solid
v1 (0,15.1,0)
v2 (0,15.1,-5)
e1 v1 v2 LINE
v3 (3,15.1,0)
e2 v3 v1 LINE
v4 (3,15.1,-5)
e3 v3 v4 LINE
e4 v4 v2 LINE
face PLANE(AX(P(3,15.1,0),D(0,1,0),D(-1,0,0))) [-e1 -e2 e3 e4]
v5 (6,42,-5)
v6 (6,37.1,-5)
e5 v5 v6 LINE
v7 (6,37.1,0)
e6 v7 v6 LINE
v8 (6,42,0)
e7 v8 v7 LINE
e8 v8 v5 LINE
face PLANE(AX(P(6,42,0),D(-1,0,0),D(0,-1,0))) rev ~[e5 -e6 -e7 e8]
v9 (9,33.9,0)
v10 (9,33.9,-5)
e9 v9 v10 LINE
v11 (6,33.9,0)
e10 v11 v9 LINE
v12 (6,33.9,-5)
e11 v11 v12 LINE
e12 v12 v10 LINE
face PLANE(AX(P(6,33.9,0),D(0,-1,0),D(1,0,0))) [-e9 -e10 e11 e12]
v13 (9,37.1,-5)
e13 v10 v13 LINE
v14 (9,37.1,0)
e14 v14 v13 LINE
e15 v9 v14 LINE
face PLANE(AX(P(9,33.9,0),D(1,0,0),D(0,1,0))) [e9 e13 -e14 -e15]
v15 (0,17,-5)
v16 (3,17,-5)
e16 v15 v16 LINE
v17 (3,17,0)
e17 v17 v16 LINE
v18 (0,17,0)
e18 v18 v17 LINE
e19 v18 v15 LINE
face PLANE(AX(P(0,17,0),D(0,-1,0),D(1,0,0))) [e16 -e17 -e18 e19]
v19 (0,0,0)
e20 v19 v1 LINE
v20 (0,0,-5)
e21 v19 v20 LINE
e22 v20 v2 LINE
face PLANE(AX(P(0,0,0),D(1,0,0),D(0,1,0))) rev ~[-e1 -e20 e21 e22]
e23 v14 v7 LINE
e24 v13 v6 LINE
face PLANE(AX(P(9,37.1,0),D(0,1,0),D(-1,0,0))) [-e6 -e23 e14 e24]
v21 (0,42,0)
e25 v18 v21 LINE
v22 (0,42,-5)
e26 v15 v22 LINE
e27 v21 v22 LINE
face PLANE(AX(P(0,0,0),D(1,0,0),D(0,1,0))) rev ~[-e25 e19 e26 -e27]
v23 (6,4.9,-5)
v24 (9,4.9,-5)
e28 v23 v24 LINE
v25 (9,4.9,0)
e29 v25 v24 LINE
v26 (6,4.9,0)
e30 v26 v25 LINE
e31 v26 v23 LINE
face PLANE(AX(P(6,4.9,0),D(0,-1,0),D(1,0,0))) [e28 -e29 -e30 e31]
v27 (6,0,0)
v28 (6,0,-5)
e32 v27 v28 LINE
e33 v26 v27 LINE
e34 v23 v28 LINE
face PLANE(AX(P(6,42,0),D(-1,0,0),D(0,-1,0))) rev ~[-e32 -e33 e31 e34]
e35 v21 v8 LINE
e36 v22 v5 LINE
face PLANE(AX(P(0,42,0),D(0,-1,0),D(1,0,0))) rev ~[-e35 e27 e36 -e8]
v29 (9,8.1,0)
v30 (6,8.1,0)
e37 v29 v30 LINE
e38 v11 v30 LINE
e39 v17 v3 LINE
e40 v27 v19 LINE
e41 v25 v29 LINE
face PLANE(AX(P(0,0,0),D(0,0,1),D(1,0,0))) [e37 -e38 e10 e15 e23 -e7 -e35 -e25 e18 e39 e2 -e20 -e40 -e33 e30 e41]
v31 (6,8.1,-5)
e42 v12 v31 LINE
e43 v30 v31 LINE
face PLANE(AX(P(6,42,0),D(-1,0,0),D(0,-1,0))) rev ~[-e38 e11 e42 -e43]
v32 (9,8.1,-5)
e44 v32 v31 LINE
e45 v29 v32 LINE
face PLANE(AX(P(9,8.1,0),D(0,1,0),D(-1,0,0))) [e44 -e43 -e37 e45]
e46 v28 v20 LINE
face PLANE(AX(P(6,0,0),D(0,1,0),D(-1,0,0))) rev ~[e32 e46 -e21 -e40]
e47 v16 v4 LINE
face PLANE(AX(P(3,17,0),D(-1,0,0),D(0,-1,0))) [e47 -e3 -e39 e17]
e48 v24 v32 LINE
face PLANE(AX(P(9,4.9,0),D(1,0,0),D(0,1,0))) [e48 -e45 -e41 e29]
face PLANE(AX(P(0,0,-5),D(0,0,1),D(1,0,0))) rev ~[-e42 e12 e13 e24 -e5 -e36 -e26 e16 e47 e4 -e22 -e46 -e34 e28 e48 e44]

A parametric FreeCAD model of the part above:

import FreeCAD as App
import Part
import Sketcher
Q = App.Units.Quantity


def add_polygon(sketch, points):
    """Adds a closed chain of lines whose ends are joined by coincident constraints."""
    first, n = sketch.GeometryCount, len(points)
    for a, b in zip(points, points[1:] + points[:1]):
        sketch.addGeometry(Part.LineSegment(App.Vector(*a, 0), App.Vector(*b, 0)), False)
    for i in range(n):
        sketch.addConstraint(Sketcher.Constraint("Coincident", first + i, 2, first + (i + 1) % n, 1))

doc = App.newDocument("Part")
body = doc.addObject("PartDesign::Body", "Body")

# Sketch on XY plane
sketch1 = body.newObject("Sketcher::SketchObject", "Sketch")
sketch1.AttachmentSupport = (doc.getObject("XY_Plane"), [""])
sketch1.MapMode = "FlatFace"
add_polygon(sketch1, [(6, 42), (0, 42), (0, 0), (6, 0)])  # lines 0-3
sketch1.addConstraint(Sketcher.Constraint("Horizontal", 0))
sketch1.addConstraint(Sketcher.Constraint("Vertical", 1))
sketch1.addConstraint(Sketcher.Constraint("Horizontal", 2))
sketch1.addConstraint(Sketcher.Constraint("Vertical", 3))
sketch1.addConstraint(Sketcher.Constraint("Coincident", 1, 2, -1, 1))
sketch1.addConstraint(Sketcher.Constraint("DistanceX", 0, 2, 0, 1, Q("6 mm")))
sketch1.addConstraint(Sketcher.Constraint("DistanceY", 1, 2, 1, 1, Q("42 mm")))
pad1 = body.newObject("PartDesign::Pad", "Pad")
pad1.Profile = sketch1
pad1.Length = 5
pad1.Reversed = True

# Sketch on XY plane
sketch2 = body.newObject("Sketcher::SketchObject", "Sketch001")
sketch2.AttachmentSupport = (doc.getObject("XY_Plane"), [""])
sketch2.MapMode = "FlatFace"
add_polygon(sketch2, [(0, 17), (0, 15.1), (3, 15.1), (3, 17)])  # lines 0-3
sketch2.addConstraint(Sketcher.Constraint("Vertical", 0))
sketch2.addConstraint(Sketcher.Constraint("Horizontal", 1))
sketch2.addConstraint(Sketcher.Constraint("Vertical", 2))
sketch2.addConstraint(Sketcher.Constraint("Horizontal", 3))
sketch2.addConstraint(Sketcher.Constraint("PointOnObject", 0, 2, -2))
sketch2.addConstraint(Sketcher.Constraint("DistanceX", 1, 1, 1, 2, Q("3 mm")))
sketch2.addConstraint(Sketcher.Constraint("DistanceY", 0, 2, 0, 1, Q("1.9 mm")))
sketch2.addConstraint(Sketcher.Constraint("DistanceY", -1, 1, 2, 2, Q("17 mm")))
pocket1 = body.newObject("PartDesign::Pocket", "Pocket")
pocket1.Profile = sketch2
pocket1.Length = 5

# Sketch on XY plane
sketch3 = body.newObject("Sketcher::SketchObject", "Sketch002")
sketch3.AttachmentSupport = (doc.getObject("XY_Plane"), [""])
sketch3.MapMode = "FlatFace"
add_polygon(sketch3, [(9, 37.1), (6, 37.1), (6, 33.9), (9, 33.9)])  # lines 0-3
add_polygon(sketch3, [(9, 8.1), (6, 8.1), (6, 4.9), (9, 4.9)])  # lines 4-7
sketch3.addConstraint(Sketcher.Constraint("Horizontal", 0))
sketch3.addConstraint(Sketcher.Constraint("Vertical", 1))
sketch3.addConstraint(Sketcher.Constraint("Horizontal", 2))
sketch3.addConstraint(Sketcher.Constraint("Vertical", 3))
sketch3.addConstraint(Sketcher.Constraint("Horizontal", 4))
sketch3.addConstraint(Sketcher.Constraint("Vertical", 5))
sketch3.addConstraint(Sketcher.Constraint("Horizontal", 6))
sketch3.addConstraint(Sketcher.Constraint("Vertical", 7))
sketch3.addConstraint(Sketcher.Constraint("Vertical", 1, 2, 4, 2))
sketch3.addConstraint(Sketcher.Constraint("Vertical", 3, 2, 6, 2))
sketch3.addConstraint(Sketcher.Constraint("Equal", 3, 5))
sketch3.addConstraint(Sketcher.Constraint("DistanceX", 0, 2, 0, 1, Q("3 mm")))
sketch3.addConstraint(Sketcher.Constraint("DistanceY", 1, 2, 1, 1, Q("3.2 mm")))
sketch3.addConstraint(Sketcher.Constraint("DistanceX", -1, 1, 0, 2, Q("6 mm")))
sketch3.addConstraint(Sketcher.Constraint("DistanceY", 4, 2, 0, 2, Q("29 mm")))
sketch3.addConstraint(Sketcher.Constraint("DistanceY", -1, 1, 0, 2, Q("37.1 mm")))
pad2 = body.newObject("PartDesign::Pad", "Pad001")
pad2.Profile = sketch3
pad2.Length = 5
pad2.Reversed = True

doc.recompute()
